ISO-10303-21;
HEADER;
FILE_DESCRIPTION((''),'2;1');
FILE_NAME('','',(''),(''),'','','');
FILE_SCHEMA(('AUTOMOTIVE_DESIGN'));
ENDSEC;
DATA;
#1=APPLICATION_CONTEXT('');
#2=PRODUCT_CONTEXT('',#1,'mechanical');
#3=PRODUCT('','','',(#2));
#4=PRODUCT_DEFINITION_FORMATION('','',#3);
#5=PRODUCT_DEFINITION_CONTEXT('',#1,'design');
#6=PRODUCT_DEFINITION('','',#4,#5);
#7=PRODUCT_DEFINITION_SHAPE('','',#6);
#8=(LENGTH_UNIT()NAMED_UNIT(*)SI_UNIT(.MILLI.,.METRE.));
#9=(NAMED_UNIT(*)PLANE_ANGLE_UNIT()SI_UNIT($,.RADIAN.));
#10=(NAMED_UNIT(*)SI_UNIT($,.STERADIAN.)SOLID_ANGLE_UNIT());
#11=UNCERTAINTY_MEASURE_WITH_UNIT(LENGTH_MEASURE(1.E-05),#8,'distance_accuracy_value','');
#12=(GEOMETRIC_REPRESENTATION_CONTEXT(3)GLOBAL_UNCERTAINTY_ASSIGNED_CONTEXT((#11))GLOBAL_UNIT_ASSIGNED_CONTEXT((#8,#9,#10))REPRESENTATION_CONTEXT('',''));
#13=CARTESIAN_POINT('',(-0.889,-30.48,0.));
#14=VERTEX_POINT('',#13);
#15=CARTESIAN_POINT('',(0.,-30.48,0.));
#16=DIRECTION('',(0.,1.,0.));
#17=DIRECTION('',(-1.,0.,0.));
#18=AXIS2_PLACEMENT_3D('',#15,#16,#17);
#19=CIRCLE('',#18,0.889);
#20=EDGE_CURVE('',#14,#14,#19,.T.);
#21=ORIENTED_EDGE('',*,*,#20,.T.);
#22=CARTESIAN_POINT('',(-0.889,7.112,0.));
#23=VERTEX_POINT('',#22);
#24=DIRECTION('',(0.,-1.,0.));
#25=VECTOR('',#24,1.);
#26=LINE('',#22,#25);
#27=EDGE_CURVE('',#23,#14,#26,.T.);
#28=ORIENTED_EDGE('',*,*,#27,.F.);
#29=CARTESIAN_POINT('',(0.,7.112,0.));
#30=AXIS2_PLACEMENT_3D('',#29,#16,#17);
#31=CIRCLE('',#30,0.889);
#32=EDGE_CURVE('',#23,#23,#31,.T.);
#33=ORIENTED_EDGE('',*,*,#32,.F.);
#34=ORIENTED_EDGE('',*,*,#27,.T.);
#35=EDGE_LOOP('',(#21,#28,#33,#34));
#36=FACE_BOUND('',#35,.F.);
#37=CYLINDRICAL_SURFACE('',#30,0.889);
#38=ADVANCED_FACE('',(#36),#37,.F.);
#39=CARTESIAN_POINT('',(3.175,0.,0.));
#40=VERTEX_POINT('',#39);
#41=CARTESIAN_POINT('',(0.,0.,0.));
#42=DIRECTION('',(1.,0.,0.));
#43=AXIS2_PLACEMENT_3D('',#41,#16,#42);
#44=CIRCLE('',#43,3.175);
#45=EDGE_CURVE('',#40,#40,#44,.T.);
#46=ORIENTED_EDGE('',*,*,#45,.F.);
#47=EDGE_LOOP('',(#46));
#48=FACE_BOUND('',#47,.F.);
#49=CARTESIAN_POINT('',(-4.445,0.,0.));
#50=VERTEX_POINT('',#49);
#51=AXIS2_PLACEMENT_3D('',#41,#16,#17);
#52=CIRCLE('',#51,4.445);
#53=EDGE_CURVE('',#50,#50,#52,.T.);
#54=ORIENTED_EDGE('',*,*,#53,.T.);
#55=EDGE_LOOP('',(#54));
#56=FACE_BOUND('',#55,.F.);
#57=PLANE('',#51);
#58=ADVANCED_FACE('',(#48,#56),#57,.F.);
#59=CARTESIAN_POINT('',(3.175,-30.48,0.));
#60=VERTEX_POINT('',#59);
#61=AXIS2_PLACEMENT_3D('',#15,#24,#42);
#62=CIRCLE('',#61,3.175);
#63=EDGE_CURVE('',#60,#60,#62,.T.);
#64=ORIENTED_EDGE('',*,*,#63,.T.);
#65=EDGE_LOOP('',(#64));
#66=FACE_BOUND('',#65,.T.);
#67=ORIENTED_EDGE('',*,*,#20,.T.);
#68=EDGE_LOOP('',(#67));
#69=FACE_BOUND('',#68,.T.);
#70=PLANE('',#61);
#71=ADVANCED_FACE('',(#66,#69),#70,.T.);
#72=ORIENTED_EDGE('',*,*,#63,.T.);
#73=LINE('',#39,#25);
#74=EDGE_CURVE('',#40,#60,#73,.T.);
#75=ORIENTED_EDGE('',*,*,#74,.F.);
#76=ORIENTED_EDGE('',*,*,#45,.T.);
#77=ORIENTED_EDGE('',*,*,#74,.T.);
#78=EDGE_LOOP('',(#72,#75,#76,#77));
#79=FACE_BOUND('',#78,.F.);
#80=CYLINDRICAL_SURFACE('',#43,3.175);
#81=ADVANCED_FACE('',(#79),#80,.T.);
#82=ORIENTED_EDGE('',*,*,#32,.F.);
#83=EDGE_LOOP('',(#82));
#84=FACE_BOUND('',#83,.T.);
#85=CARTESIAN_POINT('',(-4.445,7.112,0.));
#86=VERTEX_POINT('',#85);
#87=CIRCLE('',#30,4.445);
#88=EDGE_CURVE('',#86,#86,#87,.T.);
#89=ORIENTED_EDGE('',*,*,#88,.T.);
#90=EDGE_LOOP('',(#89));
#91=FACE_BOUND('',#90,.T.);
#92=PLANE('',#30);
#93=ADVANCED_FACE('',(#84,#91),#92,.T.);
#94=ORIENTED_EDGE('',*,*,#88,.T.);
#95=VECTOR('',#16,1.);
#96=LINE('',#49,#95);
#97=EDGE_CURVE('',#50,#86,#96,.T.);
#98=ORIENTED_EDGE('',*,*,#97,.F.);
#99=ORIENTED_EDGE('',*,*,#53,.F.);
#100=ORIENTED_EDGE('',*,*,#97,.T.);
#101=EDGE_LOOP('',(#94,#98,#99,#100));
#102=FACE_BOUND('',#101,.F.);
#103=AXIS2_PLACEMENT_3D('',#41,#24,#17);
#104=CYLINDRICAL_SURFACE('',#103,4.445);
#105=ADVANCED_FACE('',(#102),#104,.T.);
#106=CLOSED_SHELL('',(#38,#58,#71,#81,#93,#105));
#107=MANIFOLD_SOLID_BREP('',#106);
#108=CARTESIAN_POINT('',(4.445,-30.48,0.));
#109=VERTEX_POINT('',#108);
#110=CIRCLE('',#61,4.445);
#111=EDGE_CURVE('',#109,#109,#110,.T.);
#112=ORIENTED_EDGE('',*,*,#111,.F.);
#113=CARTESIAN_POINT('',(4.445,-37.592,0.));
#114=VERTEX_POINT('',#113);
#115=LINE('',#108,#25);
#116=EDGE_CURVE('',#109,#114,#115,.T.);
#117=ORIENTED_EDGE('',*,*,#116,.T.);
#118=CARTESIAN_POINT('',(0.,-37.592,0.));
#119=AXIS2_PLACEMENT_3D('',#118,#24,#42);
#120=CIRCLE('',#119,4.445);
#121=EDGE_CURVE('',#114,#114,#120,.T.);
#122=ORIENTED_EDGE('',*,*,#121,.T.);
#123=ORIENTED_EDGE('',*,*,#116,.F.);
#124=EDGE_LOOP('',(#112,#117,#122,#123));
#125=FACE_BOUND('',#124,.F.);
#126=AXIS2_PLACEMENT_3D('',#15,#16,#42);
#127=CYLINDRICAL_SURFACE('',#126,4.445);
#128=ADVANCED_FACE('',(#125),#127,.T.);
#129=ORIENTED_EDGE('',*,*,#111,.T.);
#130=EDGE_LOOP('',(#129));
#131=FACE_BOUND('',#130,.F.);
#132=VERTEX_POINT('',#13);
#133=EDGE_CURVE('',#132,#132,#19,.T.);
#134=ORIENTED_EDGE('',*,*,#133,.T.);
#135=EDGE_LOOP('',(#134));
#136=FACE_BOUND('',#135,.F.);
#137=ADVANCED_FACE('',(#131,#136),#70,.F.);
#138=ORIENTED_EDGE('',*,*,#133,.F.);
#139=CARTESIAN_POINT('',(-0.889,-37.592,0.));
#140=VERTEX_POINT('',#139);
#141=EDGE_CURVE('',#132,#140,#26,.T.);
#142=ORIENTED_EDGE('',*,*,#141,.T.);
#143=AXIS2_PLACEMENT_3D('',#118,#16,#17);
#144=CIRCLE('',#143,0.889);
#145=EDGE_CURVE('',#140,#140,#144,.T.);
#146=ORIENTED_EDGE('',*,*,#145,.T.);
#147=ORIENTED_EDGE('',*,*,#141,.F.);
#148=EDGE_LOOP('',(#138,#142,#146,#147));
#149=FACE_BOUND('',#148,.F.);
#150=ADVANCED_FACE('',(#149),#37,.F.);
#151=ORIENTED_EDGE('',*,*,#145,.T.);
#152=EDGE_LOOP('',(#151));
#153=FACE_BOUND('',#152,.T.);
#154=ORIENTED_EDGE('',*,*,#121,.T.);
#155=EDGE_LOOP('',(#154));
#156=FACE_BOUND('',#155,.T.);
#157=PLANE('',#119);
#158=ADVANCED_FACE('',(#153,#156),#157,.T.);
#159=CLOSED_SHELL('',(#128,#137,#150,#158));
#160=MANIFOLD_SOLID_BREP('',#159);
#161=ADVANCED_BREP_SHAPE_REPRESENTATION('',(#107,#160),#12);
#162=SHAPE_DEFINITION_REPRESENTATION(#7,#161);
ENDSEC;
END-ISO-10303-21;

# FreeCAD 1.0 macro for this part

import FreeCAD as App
import Part
import Sketcher
from FreeCAD import Vector
Q = App.Units.Quantity

doc = App.newDocument("Part")
body = doc.addObject("PartDesign::Body", "Body")

# Sketch on XZ plane
sketch1 = body.newObject("Sketcher::SketchObject", "Sketch")
sketch1.AttachmentSupport = (doc.getObject("XZ_Plane"), [""])
sketch1.MapMode = "FlatFace"
sketch1.addGeometry(Part.Circle(Vector(0, 0, 0), Vector(0, 0, 1), 3.2), False)
sketch1.addConstraint([
    Sketcher.Constraint("Coincident", 0, 3, -1, 1),
    Sketcher.Constraint("Diameter", 0, Q("0.25 in")),
])
pad1 = body.newObject("PartDesign::Pad", "Pad")
pad1.Profile = sketch1
pad1.Length = Q("1.2 in")

# Sketch on XZ plane
sketch2 = body.newObject("Sketcher::SketchObject", "Sketch001")
sketch2.AttachmentSupport = (doc.getObject("XZ_Plane"), [""])
sketch2.MapMode = "FlatFace"
sketch2.addGeometry(Part.Circle(Vector(0, 0, 0), Vector(0, 0, 1), 4.4), False)
sketch2.addConstraint([
    Sketcher.Constraint("Coincident", 0, 3, -1, 1),
    Sketcher.Constraint("Diameter", 0, Q("0.35 in")),
])
pad2 = body.newObject("PartDesign::Pad", "Pad001")
pad2.Profile = sketch2
pad2.Length = Q("0.28 in")
pad2.Reversed = True
body2 = doc.addObject("PartDesign::Body", "Body001")

# Sketch on XZ plane
sketch3 = body2.newObject("Sketcher::SketchObject", "Sketch002")
sketch3.AttachmentSupport = (doc.getObject("XZ_Plane001"), [""])
sketch3.MapMode = "FlatFace"
sketch3.AttachmentOffset = App.Placement(Vector(0, 0, 1.2 * 25.4), App.Rotation())
sketch3.addGeometry(Part.Circle(Vector(0, 0, 0), Vector(0, 0, 1), 4.4), False)
sketch3.addConstraint([
    Sketcher.Constraint("Coincident", 0, 3, -1, 1),
    Sketcher.Constraint("Diameter", 0, Q("0.35 in")),
])
pad3 = body2.newObject("PartDesign::Pad", "Pad002")
pad3.Profile = sketch3
pad3.Length = Q("0.28 in")
body3 = doc.addObject("PartDesign::Body", "Body002")

# Sketch on XZ plane
sketch4 = body3.newObject("Sketcher::SketchObject", "Sketch003")
sketch4.AttachmentSupport = (doc.getObject("XZ_Plane002"), [""])
sketch4.MapMode = "FlatFace"
sketch4.AttachmentOffset = App.Placement(Vector(0, 0, -0.28 * 25.4), App.Rotation())
sketch4.addGeometry(Part.Circle(Vector(0, 0, 0), Vector(0, 0, 1), 0.9), False)
sketch4.addConstraint([
    Sketcher.Constraint("Coincident", 0, 3, -1, 1),
    Sketcher.Constraint("Diameter", 0, Q("0.07 in")),
])
pad4 = body3.newObject("PartDesign::Pad", "Pad003")
pad4.Profile = sketch4
pad4.Length = Q("2.61 in")
doc.recompute()

body4 = doc.addObject("PartDesign::Body", "Body003")
body4.BaseFeature = body3
boolean = body.newObject("PartDesign::Boolean", "Boolean")
boolean.Type = "Cut"
boolean.addObjects([body4])
doc.recompute()

boolean2 = body2.newObject("PartDesign::Boolean", "Boolean001")
boolean2.Type = "Cut"
boolean2.addObjects([body3])

doc.recompute()
